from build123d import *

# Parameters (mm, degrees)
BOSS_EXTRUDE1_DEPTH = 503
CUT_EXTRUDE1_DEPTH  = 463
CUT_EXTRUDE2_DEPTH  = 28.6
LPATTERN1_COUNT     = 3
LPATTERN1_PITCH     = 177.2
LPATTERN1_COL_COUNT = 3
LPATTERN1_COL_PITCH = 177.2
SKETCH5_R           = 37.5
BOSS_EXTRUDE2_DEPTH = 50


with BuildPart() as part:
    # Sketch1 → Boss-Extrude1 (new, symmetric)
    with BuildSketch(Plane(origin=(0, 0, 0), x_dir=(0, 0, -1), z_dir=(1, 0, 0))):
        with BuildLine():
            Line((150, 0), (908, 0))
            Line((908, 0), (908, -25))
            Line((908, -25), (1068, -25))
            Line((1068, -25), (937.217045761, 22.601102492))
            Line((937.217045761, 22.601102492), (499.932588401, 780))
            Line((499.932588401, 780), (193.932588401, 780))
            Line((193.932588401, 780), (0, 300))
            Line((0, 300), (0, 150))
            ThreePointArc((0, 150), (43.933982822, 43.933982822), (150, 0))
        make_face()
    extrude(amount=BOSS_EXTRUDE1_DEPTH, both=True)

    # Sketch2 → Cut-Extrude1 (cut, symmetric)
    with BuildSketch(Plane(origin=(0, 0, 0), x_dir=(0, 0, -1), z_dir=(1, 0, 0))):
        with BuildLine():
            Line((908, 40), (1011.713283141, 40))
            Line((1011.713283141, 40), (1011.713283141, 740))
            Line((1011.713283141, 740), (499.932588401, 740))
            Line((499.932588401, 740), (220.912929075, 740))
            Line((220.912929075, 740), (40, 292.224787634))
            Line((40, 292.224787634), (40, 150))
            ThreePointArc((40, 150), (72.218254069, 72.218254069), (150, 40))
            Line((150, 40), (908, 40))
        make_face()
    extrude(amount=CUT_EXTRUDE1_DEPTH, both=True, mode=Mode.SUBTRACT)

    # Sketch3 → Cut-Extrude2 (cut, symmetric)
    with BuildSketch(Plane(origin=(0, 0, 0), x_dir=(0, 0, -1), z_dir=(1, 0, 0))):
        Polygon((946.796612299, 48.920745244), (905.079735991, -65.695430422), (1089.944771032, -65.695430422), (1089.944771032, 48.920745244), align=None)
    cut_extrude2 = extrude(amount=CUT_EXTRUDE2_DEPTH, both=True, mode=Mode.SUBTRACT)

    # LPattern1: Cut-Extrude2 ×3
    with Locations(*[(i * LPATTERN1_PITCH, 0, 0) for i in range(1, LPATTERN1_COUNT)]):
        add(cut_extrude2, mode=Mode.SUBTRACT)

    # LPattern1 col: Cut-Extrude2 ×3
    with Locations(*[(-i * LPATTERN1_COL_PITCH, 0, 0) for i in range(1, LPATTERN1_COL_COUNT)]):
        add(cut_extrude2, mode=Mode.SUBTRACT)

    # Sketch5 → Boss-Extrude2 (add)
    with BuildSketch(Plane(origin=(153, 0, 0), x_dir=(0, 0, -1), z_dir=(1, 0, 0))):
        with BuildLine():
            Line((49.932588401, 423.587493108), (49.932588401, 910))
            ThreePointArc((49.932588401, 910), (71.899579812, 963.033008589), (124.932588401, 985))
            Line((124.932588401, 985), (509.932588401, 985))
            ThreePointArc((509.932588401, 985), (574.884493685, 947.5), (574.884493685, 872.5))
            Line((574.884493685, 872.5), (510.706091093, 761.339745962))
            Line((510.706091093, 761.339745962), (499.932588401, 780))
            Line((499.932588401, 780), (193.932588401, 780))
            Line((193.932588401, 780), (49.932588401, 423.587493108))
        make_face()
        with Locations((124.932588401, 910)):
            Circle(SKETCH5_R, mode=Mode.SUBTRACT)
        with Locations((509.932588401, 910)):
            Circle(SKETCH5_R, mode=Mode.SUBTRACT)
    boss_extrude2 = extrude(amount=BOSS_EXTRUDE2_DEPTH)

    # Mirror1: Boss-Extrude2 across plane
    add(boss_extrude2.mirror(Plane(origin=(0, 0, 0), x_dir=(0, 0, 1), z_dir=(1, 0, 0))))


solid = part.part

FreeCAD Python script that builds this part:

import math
import FreeCAD as App
import Part
import Sketcher
Q = App.Units.Quantity

doc = App.newDocument("Part")
params = doc.addObject("Spreadsheet::Sheet", "Params")
for row, (alias, value) in enumerate([
    ("sketch1_radius", "150 mm"),
    ("sketch1_width", "25 mm"),
    ("sketch1_width2", "150 mm"),
    ("sketch1_height", "758 mm"),
    ("sketch1_height2", "160 mm"),
    ("pad1_length", "1006 mm"),
    ("sketch2_radius", "110 mm"),
    ("sketch2_width", "700 mm"),
    ("pocket1_length", "926 mm"),
    ("pocket2_length", "57.2 mm"),
    ("linearpattern_pitch", "177.2 mm"),
    ("linearpattern2_pitch", "177.2 mm"),
    ("sketch4_diameter", "75 mm"),
    ("sketch4_radius", "75 mm"),
    ("sketch4_height", "306 mm"),
    ("sketch4_height2", "385 mm"),
    ("pad2_length", "50 mm"),
], start=1):
    params.set(f"A{row}", alias)
    params.set(f"B{row}", "=" + value)
    params.setAlias(f"B{row}", alias)

body = doc.addObject("PartDesign::Body", "Body")

sketch1 = body.newObject("Sketcher::SketchObject", "Sketch")
sketch1.AttachmentSupport = (doc.getObject("YZ_Plane"), [""])
sketch1.MapMode = "FlatFace"
sketch1.addGeometry([
    Part.LineSegment(App.Vector(0, -150, 0), App.Vector(0, -908, 0)),
    Part.LineSegment(App.Vector(0, -908, 0), App.Vector(-25, -908, 0)),
    Part.LineSegment(App.Vector(-25, -908, 0), App.Vector(-25, -1068, 0)),
    Part.LineSegment(App.Vector(-25, -1068, 0), App.Vector(23, -937, 0)),
    Part.LineSegment(App.Vector(23, -937, 0), App.Vector(780, -500, 0)),
    Part.LineSegment(App.Vector(780, -500, 0), App.Vector(780, -194, 0)),
    Part.LineSegment(App.Vector(780, -194, 0), App.Vector(300, 0, 0)),
    Part.LineSegment(App.Vector(300, 0, 0), App.Vector(150, 0, 0)),
    Part.ArcOfCircle(Part.Circle(App.Vector(150, -150, 0), App.Vector(0, 0, 1), 150), math.radians(90), math.radians(180)),
], False)
sketch1.addConstraint([
    Sketcher.Constraint("Coincident", 0, 2, 1, 1),
    Sketcher.Constraint("Coincident", 1, 2, 2, 1),
    Sketcher.Constraint("Coincident", 2, 2, 3, 1),
    Sketcher.Constraint("Coincident", 3, 2, 4, 1),
    Sketcher.Constraint("Coincident", 4, 2, 5, 1),
    Sketcher.Constraint("Coincident", 5, 2, 6, 1),
    Sketcher.Constraint("Coincident", 6, 2, 7, 1),
    Sketcher.Constraint("Tangent", 7, 2, 8, 1),
    Sketcher.Constraint("Tangent", 8, 2, 0, 1),
    Sketcher.Constraint("Vertical", 0),
    Sketcher.Constraint("Horizontal", 1),
    Sketcher.Constraint("Vertical", 2),
    Sketcher.Constraint("Vertical", 5),
    Sketcher.Constraint("Horizontal", 7),
    Sketcher.Constraint("PointOnObject", 0, 2, -2),
    Sketcher.Constraint("PointOnObject", 6, 2, -1),
    Sketcher.Constraint("Radius", 8, 150.0),
    Sketcher.Constraint("DistanceX", 1, 2, 1, 1, 25.0),
    Sketcher.Constraint("DistanceX", 7, 2, 7, 1, 150.0),
    Sketcher.Constraint("DistanceY", 0, 2, 0, 1, 758.0),
    Sketcher.Constraint("DistanceY", 2, 2, 2, 1, 160.0),
    Sketcher.Constraint("DistanceY", 5, 1, 5, 2, 306.0),
    Sketcher.Constraint("Angle", 3, Q("70 deg")),
    Sketcher.Constraint("Angle", 4, Q("30 deg")),
    Sketcher.Constraint("Angle", 6, Q("158 deg")),
    Sketcher.Constraint("DistanceX", -1, 1, 4, 2, 780.0),
])
sketch1.setExpression("Constraints[16]", "Params.sketch1_radius")
sketch1.setExpression("Constraints[17]", "Params.sketch1_width")
sketch1.setExpression("Constraints[18]", "Params.sketch1_width2")
sketch1.setExpression("Constraints[19]", "Params.sketch1_height")
sketch1.setExpression("Constraints[20]", "Params.sketch1_height2")
pad1 = body.newObject("PartDesign::Pad", "Pad")
pad1.Profile = sketch1
pad1.setExpression("Length", "Params.pad1_length")
pad1.Midplane = True

sketch2 = body.newObject("Sketcher::SketchObject", "Sketch001")
sketch2.AttachmentSupport = (doc.getObject("YZ_Plane"), [""])
sketch2.MapMode = "FlatFace"
sketch2.addGeometry([
    Part.LineSegment(App.Vector(40, -1012, 0), App.Vector(740, -1012, 0)),
    Part.LineSegment(App.Vector(740, -1012, 0), App.Vector(740, -221, 0)),
    Part.LineSegment(App.Vector(740, -221, 0), App.Vector(292, -40, 0)),
    Part.LineSegment(App.Vector(292, -40, 0), App.Vector(150, -40, 0)),
    Part.ArcOfCircle(Part.Circle(App.Vector(150, -150, 0), App.Vector(0, 0, 1), 110), math.radians(90), math.radians(180)),
    Part.LineSegment(App.Vector(40, -150, 0), App.Vector(40, -1012, 0)),
], False)
sketch2.addConstraint([
    Sketcher.Constraint("Coincident", 0, 2, 1, 1),
    Sketcher.Constraint("Coincident", 1, 2, 2, 1),
    Sketcher.Constraint("Coincident", 2, 2, 3, 1),
    Sketcher.Constraint("Tangent", 3, 2, 4, 1),
    Sketcher.Constraint("Tangent", 4, 2, 5, 1),
    Sketcher.Constraint("Coincident", 5, 2, 0, 1),
    Sketcher.Constraint("Horizontal", 0),
    Sketcher.Constraint("Vertical", 1),
    Sketcher.Constraint("Horizontal", 3),
    Sketcher.Constraint("Vertical", 5),
    Sketcher.Constraint("Radius", 4, 110.0),
    Sketcher.Constraint("DistanceX", 0, 1, 0, 2, 700.0),
    Sketcher.Constraint("Angle", 2, Q("158 deg")),
    Sketcher.Constraint("DistanceX", -1, 1, 4, 3, 150.0),
    Sketcher.Constraint("DistanceY", 4, 3, -1, 1, 150.0),
    Sketcher.Constraint("DistanceX", 3, 2, 3, 1, 142.224788),
    Sketcher.Constraint("DistanceY", 1, 1, 1, 2, 790.800354),
])
sketch2.setExpression("Constraints[10]", "Params.sketch2_radius")
sketch2.setExpression("Constraints[11]", "Params.sketch2_width")
pocket1 = body.newObject("PartDesign::Pocket", "Pocket")
pocket1.Profile = sketch2
pocket1.setExpression("Length", "Params.pocket1_length")
pocket1.Midplane = True

sketch3 = body.newObject("Sketcher::SketchObject", "Sketch002")
sketch3.AttachmentSupport = (doc.getObject("YZ_Plane"), [""])
sketch3.MapMode = "FlatFace"
sketch3.addGeometry([
    Part.LineSegment(App.Vector(49, -947, 0), App.Vector(-66, -905, 0)),
    Part.LineSegment(App.Vector(-66, -905, 0), App.Vector(-66, -1090, 0)),
    Part.LineSegment(App.Vector(-66, -1090, 0), App.Vector(49, -1090, 0)),
    Part.LineSegment(App.Vector(49, -1090, 0), App.Vector(49, -947, 0)),
], False)
sketch3.addConstraint([
    Sketcher.Constraint("Coincident", 0, 2, 1, 1),
    Sketcher.Constraint("Coincident", 1, 2, 2, 1),
    Sketcher.Constraint("Coincident", 2, 2, 3, 1),
    Sketcher.Constraint("Coincident", 3, 2, 0, 1),
    Sketcher.Constraint("Vertical", 1),
    Sketcher.Constraint("Horizontal", 2),
    Sketcher.Constraint("Vertical", 3),
    Sketcher.Constraint("Angle", 0, Q("160 deg")),
    Sketcher.Constraint("DistanceY", 3, 1, 3, 2, 143.148159),
    Sketcher.Constraint("DistanceX", 2, 1, 2, 2, 114.616176),
    Sketcher.Constraint("DistanceX", 0, 2, -1, 1, 65.69543),
    Sketcher.Constraint("DistanceY", 1, 2, -1, 1, 1089.944771),
])
pocket2 = body.newObject("PartDesign::Pocket", "Pocket001")
pocket2.Profile = sketch3
pocket2.setExpression("Length", "Params.pocket2_length")
pocket2.Midplane = True
doc.recompute()

linearpattern = body.newObject("PartDesign::LinearPattern", "LinearPattern")
linearpattern.Originals = [pocket2]
linearpattern.Direction = (doc.getObject("X_Axis"), [""])
linearpattern.Mode = "offset"
linearpattern.setExpression("Offset", "Params.linearpattern_pitch")
linearpattern.Occurrences = 3
body.Tip = linearpattern
doc.recompute()

linearpattern2 = body.newObject("PartDesign::LinearPattern", "LinearPattern001")
linearpattern2.Originals = [pocket2]
linearpattern2.Direction = (doc.getObject("X_Axis"), [""])
linearpattern2.Mode = "offset"
linearpattern2.setExpression("Offset", "Params.linearpattern2_pitch")
linearpattern2.Occurrences = 3
linearpattern2.Reversed = True
body.Tip = linearpattern2

sketch4 = body.newObject("Sketcher::SketchObject", "Sketch003")
sketch4.AttachmentSupport = (doc.getObject("YZ_Plane"), [""])
sketch4.MapMode = "FlatFace"
sketch4.AttachmentOffset = App.Placement(App.Vector(0, 0, 153), App.Rotation())
sketch4.addGeometry([
    Part.LineSegment(App.Vector(910, -50, 0), App.Vector(424, -50, 0)),
    Part.LineSegment(App.Vector(424, -50, 0), App.Vector(780, -194, 0)),
    Part.LineSegment(App.Vector(780, -194, 0), App.Vector(780, -500, 0)),
    Part.LineSegment(App.Vector(780, -500, 0), App.Vector(761, -511, 0)),
    Part.LineSegment(App.Vector(761, -511, 0), App.Vector(872, -575, 0)),
    Part.ArcOfCircle(Part.Circle(App.Vector(910, -510, 0), App.Vector(0, 0, 1), 75), math.radians(-120), math.radians(0)),
    Part.LineSegment(App.Vector(985, -510, 0), App.Vector(985, -125, 0)),
    Part.ArcOfCircle(Part.Circle(App.Vector(910, -125, 0), App.Vector(0, 0, 1), 75), math.radians(0), math.radians(90)),
    Part.Circle(App.Vector(910, -510, 0), App.Vector(0, 0, 1), 38),
    Part.Circle(App.Vector(910, -125, 0), App.Vector(0, 0, 1), 38),
], False)
sketch4.addConstraint([
    Sketcher.Constraint("Coincident", 0, 2, 1, 1),
    Sketcher.Constraint("Coincident", 1, 2, 2, 1),
    Sketcher.Constraint("Coincident", 2, 2, 3, 1),
    Sketcher.Constraint("Coincident", 3, 2, 4, 1),
    Sketcher.Constraint("Tangent", 4, 2, 5, 1),
    Sketcher.Constraint("Tangent", 5, 2, 6, 1),
    Sketcher.Constraint("Tangent", 6, 2, 7, 1),
    Sketcher.Constraint("Tangent", 7, 2, 0, 1),
    Sketcher.Constraint("Horizontal", 0),
    Sketcher.Constraint("Vertical", 2),
    Sketcher.Constraint("Vertical", 6),
    Sketcher.Constraint("Coincident", 8, 3, 5, 3),
    Sketcher.Constraint("Coincident", 9, 3, 7, 3),
    Sketcher.Constraint("Equal", 5, 7),
    Sketcher.Constraint("Equal", 8, 9),
    Sketcher.Constraint("Diameter", 8, 75.0),
    Sketcher.Constraint("Radius", 5, 75.0),
    Sketcher.Constraint("DistanceY", 2, 2, 2, 1, 306.0),
    Sketcher.Constraint("DistanceY", 6, 1, 6, 2, 385.0),
    Sketcher.Constraint("Angle", 1, Q("-22 deg")),
    Sketcher.Constraint("Angle", 3, Q("-150 deg")),
    Sketcher.Constraint("Angle", 4, Q("-30 deg")),
    Sketcher.Constraint("DistanceX", -1, 1, 5, 3, 910.0),
    Sketcher.Constraint("DistanceX", -1, 1, 1, 2, 780.0),
    Sketcher.Constraint("DistanceY", 1, 2, 7, 3, 69.0),
    Sketcher.Constraint("DistanceY", 5, 3, -1, 1, 509.932588),
])
sketch4.setExpression("Constraints[15]", "Params.sketch4_diameter")
sketch4.setExpression("Constraints[16]", "Params.sketch4_radius")
sketch4.setExpression("Constraints[17]", "Params.sketch4_height")
sketch4.setExpression("Constraints[18]", "Params.sketch4_height2")
pad2 = body.newObject("PartDesign::Pad", "Pad001")
pad2.Profile = sketch4
pad2.setExpression("Length", "Params.pad2_length")
doc.recompute()

mirrored = body.newObject("PartDesign::Mirrored", "Mirrored")
mirrored.Originals = [pad2]
mirrored.MirrorPlane = (doc.getObject("YZ_Plane"), [""])
body.Tip = mirrored

doc.recompute()
